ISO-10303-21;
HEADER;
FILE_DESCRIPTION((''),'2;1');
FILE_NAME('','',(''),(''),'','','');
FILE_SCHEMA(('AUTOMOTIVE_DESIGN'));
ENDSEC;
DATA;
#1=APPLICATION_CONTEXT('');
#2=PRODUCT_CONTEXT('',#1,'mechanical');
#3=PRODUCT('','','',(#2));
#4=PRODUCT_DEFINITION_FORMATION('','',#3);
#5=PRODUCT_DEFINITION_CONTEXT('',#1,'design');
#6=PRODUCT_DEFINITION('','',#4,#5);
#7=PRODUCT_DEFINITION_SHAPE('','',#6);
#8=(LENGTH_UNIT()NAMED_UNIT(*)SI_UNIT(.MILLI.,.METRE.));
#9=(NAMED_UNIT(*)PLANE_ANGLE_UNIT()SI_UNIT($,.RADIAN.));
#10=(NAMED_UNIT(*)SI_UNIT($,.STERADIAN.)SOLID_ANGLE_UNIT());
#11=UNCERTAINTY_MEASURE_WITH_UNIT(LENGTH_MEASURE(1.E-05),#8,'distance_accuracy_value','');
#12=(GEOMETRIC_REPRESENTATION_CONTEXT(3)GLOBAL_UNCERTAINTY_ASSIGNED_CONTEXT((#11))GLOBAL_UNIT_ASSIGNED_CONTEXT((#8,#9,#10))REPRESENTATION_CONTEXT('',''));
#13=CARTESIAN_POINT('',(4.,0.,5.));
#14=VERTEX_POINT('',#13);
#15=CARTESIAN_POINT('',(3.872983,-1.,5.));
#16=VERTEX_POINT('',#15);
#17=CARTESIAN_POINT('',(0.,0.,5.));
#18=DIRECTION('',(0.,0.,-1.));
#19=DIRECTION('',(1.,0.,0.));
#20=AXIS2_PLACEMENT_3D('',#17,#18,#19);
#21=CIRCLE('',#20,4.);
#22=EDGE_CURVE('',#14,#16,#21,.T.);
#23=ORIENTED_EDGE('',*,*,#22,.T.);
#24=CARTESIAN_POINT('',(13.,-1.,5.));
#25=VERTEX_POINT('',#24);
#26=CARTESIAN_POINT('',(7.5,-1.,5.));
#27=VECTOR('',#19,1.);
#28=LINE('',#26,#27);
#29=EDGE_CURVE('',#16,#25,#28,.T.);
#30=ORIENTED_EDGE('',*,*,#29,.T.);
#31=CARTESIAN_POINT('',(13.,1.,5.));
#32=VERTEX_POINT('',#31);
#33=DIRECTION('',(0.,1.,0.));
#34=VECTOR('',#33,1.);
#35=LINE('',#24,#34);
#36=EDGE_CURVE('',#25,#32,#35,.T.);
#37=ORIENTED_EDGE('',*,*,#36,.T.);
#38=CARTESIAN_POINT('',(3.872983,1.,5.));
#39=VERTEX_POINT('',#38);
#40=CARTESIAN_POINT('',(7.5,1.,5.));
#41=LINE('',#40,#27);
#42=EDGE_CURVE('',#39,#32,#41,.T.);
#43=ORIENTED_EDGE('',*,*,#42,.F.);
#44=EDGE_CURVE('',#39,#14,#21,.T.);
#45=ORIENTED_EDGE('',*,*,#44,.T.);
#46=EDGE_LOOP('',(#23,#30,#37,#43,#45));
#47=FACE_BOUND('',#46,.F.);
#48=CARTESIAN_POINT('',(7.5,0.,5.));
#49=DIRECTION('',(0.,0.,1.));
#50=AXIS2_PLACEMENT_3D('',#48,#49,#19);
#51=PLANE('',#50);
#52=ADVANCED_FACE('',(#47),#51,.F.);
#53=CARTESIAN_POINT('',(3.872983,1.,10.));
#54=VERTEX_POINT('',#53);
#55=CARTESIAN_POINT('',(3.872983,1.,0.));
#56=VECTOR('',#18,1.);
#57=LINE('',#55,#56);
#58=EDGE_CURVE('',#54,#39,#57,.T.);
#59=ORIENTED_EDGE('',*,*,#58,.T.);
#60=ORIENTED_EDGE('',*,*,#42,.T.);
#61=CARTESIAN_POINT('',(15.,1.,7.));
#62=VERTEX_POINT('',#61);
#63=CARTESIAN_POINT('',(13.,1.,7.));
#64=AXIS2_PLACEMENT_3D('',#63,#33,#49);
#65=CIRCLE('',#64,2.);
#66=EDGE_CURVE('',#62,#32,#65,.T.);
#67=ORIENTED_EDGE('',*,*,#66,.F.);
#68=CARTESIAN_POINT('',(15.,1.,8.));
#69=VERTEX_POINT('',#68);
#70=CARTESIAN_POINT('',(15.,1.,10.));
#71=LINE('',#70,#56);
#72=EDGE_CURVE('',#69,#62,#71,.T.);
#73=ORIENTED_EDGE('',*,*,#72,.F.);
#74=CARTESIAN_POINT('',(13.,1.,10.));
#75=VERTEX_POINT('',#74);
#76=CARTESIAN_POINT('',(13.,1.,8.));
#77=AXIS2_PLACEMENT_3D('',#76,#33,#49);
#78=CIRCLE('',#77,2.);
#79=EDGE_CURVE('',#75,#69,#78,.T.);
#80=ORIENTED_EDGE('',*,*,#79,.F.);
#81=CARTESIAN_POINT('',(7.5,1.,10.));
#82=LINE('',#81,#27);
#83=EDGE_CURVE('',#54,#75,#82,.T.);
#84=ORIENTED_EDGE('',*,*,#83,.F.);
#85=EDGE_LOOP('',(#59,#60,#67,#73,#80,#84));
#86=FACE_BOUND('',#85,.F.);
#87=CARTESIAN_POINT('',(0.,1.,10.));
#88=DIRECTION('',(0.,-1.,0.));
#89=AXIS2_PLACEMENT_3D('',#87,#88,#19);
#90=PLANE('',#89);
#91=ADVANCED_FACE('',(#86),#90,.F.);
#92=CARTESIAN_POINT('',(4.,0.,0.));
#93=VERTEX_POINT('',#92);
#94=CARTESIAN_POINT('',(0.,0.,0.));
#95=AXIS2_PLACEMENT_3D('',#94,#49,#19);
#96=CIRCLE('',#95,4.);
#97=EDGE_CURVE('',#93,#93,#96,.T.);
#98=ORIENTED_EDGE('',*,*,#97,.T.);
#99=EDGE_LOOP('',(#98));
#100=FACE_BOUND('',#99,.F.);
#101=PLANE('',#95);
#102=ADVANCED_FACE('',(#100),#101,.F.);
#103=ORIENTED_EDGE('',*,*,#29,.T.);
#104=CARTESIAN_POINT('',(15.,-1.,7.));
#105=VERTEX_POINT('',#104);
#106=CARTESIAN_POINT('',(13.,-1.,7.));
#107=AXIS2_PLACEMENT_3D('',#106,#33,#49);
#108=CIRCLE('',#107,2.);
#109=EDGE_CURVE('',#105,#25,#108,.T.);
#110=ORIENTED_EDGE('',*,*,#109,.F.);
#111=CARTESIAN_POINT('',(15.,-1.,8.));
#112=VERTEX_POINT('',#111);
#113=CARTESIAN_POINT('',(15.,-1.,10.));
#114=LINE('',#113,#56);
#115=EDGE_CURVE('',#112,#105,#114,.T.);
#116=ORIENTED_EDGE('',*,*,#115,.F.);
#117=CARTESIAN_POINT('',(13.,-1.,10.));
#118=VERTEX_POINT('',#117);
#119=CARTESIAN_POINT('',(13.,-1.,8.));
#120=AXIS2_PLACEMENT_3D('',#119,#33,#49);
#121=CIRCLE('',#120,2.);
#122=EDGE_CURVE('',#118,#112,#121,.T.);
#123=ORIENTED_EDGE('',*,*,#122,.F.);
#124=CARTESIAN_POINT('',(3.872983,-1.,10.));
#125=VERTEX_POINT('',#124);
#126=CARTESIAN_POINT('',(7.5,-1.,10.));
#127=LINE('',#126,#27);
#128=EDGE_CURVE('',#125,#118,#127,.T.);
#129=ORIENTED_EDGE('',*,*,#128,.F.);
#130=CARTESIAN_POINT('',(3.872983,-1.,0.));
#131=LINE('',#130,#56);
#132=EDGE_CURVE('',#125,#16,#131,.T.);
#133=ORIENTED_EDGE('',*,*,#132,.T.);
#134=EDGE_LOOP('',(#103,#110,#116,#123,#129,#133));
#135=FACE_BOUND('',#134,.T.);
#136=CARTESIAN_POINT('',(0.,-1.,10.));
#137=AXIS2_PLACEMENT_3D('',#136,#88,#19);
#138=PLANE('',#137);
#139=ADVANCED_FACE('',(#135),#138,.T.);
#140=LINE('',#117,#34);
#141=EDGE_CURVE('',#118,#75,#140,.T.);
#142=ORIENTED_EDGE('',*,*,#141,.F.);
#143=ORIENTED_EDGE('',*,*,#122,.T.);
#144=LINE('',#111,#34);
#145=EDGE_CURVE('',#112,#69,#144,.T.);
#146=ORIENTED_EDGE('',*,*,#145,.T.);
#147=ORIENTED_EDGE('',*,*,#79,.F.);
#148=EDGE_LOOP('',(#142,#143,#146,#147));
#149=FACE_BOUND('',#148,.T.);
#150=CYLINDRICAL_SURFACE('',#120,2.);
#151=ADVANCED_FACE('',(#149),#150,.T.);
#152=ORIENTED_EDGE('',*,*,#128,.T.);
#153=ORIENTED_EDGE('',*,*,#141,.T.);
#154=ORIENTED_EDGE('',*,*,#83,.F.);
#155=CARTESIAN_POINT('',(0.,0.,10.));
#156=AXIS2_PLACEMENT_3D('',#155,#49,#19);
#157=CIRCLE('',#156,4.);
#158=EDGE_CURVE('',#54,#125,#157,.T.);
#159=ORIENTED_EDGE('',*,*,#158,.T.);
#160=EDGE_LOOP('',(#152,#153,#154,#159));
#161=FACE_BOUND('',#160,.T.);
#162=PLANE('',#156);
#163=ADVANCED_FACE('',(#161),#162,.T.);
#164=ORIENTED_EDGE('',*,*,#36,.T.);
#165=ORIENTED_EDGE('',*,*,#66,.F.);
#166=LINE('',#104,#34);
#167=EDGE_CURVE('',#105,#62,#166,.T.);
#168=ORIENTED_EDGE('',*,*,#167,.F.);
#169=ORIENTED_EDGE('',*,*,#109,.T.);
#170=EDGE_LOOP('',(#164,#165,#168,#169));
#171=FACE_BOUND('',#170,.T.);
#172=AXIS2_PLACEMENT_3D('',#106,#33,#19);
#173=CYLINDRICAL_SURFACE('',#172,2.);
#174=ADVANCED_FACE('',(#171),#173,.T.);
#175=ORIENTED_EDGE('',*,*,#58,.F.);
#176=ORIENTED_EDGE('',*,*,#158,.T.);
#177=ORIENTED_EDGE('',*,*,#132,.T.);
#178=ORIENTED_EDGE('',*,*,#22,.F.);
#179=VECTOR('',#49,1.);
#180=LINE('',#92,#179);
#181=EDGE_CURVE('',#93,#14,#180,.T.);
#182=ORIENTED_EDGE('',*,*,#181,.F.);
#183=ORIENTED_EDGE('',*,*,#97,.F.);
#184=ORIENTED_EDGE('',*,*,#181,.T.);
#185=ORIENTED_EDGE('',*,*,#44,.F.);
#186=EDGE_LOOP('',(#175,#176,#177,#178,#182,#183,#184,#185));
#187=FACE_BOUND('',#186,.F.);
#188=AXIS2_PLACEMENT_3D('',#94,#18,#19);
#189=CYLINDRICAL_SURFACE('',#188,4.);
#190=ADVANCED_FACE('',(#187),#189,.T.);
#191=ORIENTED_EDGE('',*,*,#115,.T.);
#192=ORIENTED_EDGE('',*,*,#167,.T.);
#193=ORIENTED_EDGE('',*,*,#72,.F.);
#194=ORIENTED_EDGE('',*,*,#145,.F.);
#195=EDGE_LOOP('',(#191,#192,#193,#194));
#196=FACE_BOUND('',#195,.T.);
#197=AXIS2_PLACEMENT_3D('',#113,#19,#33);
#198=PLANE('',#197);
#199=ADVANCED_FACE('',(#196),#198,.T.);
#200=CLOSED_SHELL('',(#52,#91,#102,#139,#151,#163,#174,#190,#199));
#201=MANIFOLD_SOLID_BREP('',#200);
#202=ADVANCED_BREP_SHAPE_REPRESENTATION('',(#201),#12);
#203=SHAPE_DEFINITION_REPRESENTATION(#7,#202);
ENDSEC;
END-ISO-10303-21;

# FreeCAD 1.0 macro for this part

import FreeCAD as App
import Part
import Sketcher
from FreeCAD import Vector
Q = App.Units.Quantity


def edges_at(feature, points):
    """Names of the edges that pass closest to the given points."""
    edges = feature.Shape.Edges
    near = lambda p: min(range(len(edges)), key=lambda i: edges[i].distToShape(Part.Vertex(*p))[0])
    return sorted({f"Edge{near(p) + 1}" for p in points})

doc = App.newDocument("Part")
body = doc.addObject("PartDesign::Body", "Body")

sketch1 = body.newObject("Sketcher::SketchObject", "Sketch")
sketch1.AttachmentSupport = (doc.getObject("XY_Plane"), [""])
sketch1.MapMode = "FlatFace"
sketch1.addGeometry(Part.Circle(Vector(0, 0, 0), Vector(0, 0, 1), 4), False)
sketch1.addConstraint(Sketcher.Constraint("Coincident", 0, 3, -1, 1))
sketch1.addConstraint(Sketcher.Constraint("Diameter", 0, Q("8 mm")))
pad1 = body.newObject("PartDesign::Pad", "Pad")
pad1.Profile = sketch1
pad1.Length = 10

sketch2 = body.newObject("Sketcher::SketchObject", "Sketch001")
sketch2.AttachmentSupport = (doc.getObject("XY_Plane"), [""])
sketch2.MapMode = "FlatFace"
sketch2.AttachmentOffset = App.Placement(Vector(0, 0, 10), App.Rotation())
sketch2.addGeometry(Part.LineSegment(Vector(0, 1, 0), Vector(0, -1, 0)), False)
sketch2.addGeometry(Part.LineSegment(Vector(0, -1, 0), Vector(15, -1, 0)), False)
sketch2.addGeometry(Part.LineSegment(Vector(15, -1, 0), Vector(15, 1, 0)), False)
sketch2.addGeometry(Part.LineSegment(Vector(15, 1, 0), Vector(0, 1, 0)), False)
sketch2.addConstraint(Sketcher.Constraint("Coincident", 0, 2, 1, 1))
sketch2.addConstraint(Sketcher.Constraint("Coincident", 1, 2, 2, 1))
sketch2.addConstraint(Sketcher.Constraint("Coincident", 2, 2, 3, 1))
sketch2.addConstraint(Sketcher.Constraint("Coincident", 3, 2, 0, 1))
sketch2.addConstraint(Sketcher.Constraint("Vertical", 0))
sketch2.addConstraint(Sketcher.Constraint("Horizontal", 1))
sketch2.addConstraint(Sketcher.Constraint("Vertical", 2))
sketch2.addConstraint(Sketcher.Constraint("Horizontal", 3))
sketch2.addConstraint(Sketcher.Constraint("Symmetric", 0, 2, 3, 2, -1, 1))
sketch2.addConstraint(Sketcher.Constraint("DistanceX", 1, 1, 1, 2, Q("15 mm")))
sketch2.addConstraint(Sketcher.Constraint("DistanceY", 0, 2, 0, 1, Q("2 mm")))
pad2 = body.newObject("PartDesign::Pad", "Pad001")
pad2.Profile = sketch2
pad2.Length = 5
pad2.Reversed = True
doc.recompute()

fillet = body.newObject("PartDesign::Fillet", "Fillet")
fillet.Base = (pad2, edges_at(pad2, [(15, 0, 10), (15, 0, 5)]))
fillet.Radius = 2

doc.recompute()
